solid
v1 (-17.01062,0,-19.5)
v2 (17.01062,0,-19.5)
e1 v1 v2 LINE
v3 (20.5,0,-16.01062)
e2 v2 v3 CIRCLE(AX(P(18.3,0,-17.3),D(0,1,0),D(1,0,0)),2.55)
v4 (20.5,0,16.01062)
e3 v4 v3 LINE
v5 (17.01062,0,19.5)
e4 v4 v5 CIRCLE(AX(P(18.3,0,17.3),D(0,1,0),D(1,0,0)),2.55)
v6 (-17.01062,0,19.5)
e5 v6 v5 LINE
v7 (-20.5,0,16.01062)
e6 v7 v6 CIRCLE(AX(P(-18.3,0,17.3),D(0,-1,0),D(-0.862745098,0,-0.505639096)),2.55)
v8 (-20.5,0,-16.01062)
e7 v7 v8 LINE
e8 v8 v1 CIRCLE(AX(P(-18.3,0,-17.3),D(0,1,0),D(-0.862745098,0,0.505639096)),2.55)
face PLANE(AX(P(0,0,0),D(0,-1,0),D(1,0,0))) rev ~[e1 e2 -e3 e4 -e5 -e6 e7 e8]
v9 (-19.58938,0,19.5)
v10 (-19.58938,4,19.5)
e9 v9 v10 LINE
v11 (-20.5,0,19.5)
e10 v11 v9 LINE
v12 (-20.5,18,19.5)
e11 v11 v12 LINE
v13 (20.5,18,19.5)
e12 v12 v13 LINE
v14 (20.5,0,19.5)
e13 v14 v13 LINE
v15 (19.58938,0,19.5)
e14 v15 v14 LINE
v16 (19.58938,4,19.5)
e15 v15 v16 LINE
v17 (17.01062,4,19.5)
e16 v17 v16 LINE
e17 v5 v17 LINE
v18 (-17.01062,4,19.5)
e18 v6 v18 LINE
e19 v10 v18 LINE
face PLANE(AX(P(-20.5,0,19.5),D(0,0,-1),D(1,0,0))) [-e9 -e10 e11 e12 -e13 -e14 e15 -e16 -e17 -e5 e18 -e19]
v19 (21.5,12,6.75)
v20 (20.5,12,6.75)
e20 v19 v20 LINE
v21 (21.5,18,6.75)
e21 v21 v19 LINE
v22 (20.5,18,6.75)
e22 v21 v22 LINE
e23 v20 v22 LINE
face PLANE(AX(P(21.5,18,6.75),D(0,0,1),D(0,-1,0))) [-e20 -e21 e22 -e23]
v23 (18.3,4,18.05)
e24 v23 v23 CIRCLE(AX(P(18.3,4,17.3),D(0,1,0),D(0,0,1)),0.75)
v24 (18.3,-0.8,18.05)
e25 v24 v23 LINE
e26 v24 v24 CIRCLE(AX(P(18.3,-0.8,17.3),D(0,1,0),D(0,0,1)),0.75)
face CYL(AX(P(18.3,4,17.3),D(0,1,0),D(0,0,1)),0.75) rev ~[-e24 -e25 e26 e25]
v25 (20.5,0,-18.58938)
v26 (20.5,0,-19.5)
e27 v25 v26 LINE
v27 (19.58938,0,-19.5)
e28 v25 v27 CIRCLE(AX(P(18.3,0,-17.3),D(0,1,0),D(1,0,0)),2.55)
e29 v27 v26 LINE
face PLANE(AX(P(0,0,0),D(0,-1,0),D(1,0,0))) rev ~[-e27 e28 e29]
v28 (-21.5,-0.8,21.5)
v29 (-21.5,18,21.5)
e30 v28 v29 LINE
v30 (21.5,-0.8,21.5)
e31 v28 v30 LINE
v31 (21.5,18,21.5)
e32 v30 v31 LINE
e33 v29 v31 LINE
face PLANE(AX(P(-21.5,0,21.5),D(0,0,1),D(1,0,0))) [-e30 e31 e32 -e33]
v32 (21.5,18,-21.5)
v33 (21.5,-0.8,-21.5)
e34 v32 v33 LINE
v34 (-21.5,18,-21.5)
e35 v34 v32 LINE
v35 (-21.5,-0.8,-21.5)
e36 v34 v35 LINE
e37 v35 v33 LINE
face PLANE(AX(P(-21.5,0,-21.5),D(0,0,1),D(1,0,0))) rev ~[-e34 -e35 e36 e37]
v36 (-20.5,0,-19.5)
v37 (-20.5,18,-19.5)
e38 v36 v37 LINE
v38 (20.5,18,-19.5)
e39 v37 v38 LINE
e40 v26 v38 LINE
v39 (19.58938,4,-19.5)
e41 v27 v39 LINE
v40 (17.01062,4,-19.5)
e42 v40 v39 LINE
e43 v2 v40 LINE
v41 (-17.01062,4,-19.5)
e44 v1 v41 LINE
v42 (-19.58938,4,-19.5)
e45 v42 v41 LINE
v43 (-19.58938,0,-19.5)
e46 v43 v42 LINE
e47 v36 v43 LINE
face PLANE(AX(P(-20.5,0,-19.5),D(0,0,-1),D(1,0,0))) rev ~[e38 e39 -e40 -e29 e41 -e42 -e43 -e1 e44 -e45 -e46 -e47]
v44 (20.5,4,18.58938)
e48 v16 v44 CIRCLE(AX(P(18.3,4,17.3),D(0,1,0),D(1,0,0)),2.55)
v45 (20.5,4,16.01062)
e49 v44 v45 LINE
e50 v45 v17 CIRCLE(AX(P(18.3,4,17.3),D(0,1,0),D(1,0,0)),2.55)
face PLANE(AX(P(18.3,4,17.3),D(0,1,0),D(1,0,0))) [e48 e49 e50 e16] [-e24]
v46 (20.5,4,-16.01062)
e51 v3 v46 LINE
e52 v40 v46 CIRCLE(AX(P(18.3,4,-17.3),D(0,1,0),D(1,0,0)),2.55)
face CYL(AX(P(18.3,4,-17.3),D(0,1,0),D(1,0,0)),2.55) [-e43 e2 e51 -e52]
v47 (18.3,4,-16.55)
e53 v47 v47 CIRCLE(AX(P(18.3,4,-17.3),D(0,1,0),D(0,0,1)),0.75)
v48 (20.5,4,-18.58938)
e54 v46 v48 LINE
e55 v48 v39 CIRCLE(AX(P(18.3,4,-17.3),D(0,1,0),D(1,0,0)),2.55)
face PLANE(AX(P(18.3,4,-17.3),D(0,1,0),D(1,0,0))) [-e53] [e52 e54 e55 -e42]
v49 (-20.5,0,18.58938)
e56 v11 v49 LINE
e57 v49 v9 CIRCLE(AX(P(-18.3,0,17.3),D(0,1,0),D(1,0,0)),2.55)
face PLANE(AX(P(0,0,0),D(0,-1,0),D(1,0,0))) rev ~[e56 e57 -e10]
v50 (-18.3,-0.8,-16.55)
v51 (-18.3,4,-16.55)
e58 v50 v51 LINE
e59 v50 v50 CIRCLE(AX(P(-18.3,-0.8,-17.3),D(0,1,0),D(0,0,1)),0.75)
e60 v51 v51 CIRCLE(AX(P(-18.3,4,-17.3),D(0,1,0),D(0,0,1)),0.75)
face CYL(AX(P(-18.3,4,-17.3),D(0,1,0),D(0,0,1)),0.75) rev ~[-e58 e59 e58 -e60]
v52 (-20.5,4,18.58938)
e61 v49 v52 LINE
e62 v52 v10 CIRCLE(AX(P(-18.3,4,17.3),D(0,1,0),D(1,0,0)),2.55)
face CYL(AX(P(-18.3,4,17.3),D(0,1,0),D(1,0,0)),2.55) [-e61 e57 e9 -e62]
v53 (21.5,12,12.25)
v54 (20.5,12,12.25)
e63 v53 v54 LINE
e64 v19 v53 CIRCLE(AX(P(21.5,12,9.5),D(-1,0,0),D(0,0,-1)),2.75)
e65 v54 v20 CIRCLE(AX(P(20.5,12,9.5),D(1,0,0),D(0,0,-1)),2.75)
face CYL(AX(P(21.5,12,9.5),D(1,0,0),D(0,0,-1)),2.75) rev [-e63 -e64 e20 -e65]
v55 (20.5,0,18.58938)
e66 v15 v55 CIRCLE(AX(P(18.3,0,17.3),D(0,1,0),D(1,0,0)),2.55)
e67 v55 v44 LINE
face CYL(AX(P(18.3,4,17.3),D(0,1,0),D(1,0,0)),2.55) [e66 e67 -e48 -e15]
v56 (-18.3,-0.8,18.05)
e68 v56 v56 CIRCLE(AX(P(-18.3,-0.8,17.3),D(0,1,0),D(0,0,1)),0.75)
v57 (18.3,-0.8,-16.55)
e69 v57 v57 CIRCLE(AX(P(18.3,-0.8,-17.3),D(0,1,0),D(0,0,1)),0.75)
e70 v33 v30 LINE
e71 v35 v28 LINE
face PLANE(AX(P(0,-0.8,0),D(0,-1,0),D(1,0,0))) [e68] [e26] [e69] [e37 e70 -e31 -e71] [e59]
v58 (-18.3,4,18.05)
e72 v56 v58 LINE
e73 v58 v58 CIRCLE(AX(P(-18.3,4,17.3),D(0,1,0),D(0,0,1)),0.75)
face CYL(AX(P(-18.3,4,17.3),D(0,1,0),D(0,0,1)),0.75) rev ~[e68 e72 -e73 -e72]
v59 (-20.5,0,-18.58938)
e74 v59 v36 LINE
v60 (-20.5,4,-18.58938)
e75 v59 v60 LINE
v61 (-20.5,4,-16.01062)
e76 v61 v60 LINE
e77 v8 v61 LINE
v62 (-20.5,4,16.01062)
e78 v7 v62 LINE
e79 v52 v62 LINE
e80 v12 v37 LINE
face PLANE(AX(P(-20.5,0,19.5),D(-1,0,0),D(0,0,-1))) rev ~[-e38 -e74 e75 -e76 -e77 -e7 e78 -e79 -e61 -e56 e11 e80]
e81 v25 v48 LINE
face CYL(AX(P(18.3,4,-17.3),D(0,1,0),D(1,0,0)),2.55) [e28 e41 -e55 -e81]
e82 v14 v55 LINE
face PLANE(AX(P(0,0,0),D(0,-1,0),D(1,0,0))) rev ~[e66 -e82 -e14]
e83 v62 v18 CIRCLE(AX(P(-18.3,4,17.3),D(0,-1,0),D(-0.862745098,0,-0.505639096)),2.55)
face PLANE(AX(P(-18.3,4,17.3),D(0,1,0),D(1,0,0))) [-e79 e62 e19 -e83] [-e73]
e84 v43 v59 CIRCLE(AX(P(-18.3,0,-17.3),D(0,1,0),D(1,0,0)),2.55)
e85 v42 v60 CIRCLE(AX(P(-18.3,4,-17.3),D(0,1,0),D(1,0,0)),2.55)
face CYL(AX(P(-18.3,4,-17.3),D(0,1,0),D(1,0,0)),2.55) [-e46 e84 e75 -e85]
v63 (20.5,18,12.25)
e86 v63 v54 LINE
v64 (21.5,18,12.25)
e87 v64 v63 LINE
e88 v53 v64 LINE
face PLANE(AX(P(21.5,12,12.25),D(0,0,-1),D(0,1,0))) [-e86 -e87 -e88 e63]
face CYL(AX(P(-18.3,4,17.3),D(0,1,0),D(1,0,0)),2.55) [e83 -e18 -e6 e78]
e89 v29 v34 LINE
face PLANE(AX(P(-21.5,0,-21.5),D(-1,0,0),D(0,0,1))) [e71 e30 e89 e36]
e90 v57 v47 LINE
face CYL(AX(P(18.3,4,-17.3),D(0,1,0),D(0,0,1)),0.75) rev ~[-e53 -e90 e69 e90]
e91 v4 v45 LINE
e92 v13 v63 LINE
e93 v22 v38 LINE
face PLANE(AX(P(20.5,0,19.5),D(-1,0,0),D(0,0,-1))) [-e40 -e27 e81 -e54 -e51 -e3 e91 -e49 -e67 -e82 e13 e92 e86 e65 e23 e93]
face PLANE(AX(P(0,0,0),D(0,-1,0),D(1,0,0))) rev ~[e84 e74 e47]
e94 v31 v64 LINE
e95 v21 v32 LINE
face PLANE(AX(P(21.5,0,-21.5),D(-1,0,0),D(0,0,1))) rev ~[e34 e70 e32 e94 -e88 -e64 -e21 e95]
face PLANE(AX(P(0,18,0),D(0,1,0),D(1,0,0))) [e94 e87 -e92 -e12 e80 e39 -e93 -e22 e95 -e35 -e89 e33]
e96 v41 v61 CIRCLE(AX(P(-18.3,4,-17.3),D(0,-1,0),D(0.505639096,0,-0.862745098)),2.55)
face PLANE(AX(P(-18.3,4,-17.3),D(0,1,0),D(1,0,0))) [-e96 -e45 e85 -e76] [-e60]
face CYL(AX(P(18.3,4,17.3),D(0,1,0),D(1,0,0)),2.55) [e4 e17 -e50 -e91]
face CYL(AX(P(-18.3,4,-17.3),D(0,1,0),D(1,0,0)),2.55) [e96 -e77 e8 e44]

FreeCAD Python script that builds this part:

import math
import FreeCAD as App
import Part
import Sketcher
Q = App.Units.Quantity

doc = App.newDocument("Part")
params = doc.addObject("Spreadsheet::Sheet", "Params")
for row, (alias, value) in enumerate([
    ("sketch1_width", "43 mm"),
    ("sketch1_width2", "41 mm"),
    ("sketch1_height", "39 mm"),
    ("pad1_length", "18 mm"),
    ("sketch2_width", "43 mm"),
    ("pad2_length", "0.8 mm"),
    ("sketch3_diameter", "1.5 mm"),
    ("pocket1_length", "10.8 mm"),
    ("sketch4_diameter", "5.1 mm"),
    ("sketch4_diameter2", "1.5 mm"),
    ("pad3_length", "4 mm"),
    ("sketch5_width", "6 mm"),
    ("sketch5_radius", "2.75 mm"),
    ("pocket2_length", "4 mm"),
], start=1):
    params.set(f"A{row}", alias)
    params.set(f"B{row}", "=" + value)
    params.setAlias(f"B{row}", alias)

body = doc.addObject("PartDesign::Body", "Body")

# Sketch on XZ plane
sketch1 = doc.addObject("Sketcher::SketchObject", "Sketch")
body.addObject(sketch1)
sketch1.AttachmentSupport = (doc.XZ_Plane, [""])
sketch1.MapMode = "FlatFace"
sketch1.addGeometry([
    Part.LineSegment(App.Vector(-22, -22, 0), App.Vector(-22, 22, 0)),  # 0
    Part.LineSegment(App.Vector(-22, 22, 0), App.Vector(22, 22, 0)),  # 1
    Part.LineSegment(App.Vector(22, 22, 0), App.Vector(22, -22, 0)),  # 2
    Part.LineSegment(App.Vector(22, -22, 0), App.Vector(-22, -22, 0)),  # 3
    Part.LineSegment(App.Vector(20, 20, 0), App.Vector(-20, 20, 0)),  # 4
    Part.LineSegment(App.Vector(-20, 20, 0), App.Vector(-20, -20, 0)),  # 5
    Part.LineSegment(App.Vector(-20, -20, 0), App.Vector(20, -20, 0)),  # 6
    Part.LineSegment(App.Vector(20, -20, 0), App.Vector(20, 20, 0)),  # 7
], False)
sketch1.addConstraint([
    Sketcher.Constraint("Coincident", 0, 2, 1, 1),
    Sketcher.Constraint("Coincident", 1, 2, 2, 1),
    Sketcher.Constraint("Coincident", 2, 2, 3, 1),
    Sketcher.Constraint("Coincident", 3, 2, 0, 1),
    Sketcher.Constraint("Coincident", 4, 2, 5, 1),
    Sketcher.Constraint("Coincident", 5, 2, 6, 1),
    Sketcher.Constraint("Coincident", 6, 2, 7, 1),
    Sketcher.Constraint("Coincident", 7, 2, 4, 1),
    Sketcher.Constraint("Vertical", 0),
    Sketcher.Constraint("Horizontal", 1),
    Sketcher.Constraint("Vertical", 2),
    Sketcher.Constraint("Horizontal", 3),
    Sketcher.Constraint("Horizontal", 4),
    Sketcher.Constraint("Vertical", 5),
    Sketcher.Constraint("Horizontal", 6),
    Sketcher.Constraint("Vertical", 7),
    Sketcher.Constraint("Symmetric", 0, 2, 2, 2, -1, 1),
    Sketcher.Constraint("Symmetric", 4, 2, 6, 2, -1, 1),
    Sketcher.Constraint("Equal", 3, 0),
    Sketcher.Constraint("DistanceX", 1, 1, 1, 2, Q("43 mm")),
    Sketcher.Constraint("DistanceX", 4, 2, 4, 1, Q("41 mm")),
    Sketcher.Constraint("DistanceY", 5, 2, 5, 1, Q("39 mm")),
])
sketch1.setExpression("Constraints[19]", "Params.sketch1_width")
sketch1.setExpression("Constraints[20]", "Params.sketch1_width2")
sketch1.setExpression("Constraints[21]", "Params.sketch1_height")
pad1 = doc.addObject("PartDesign::Pad", "Pad")
body.addObject(pad1)
pad1.Profile = sketch1
pad1.setExpression("Length", "Params.pad1_length")
pad1.Reversed = True

# Sketch on XZ plane
sketch2 = doc.addObject("Sketcher::SketchObject", "Sketch001")
body.addObject(sketch2)
sketch2.AttachmentSupport = (doc.XZ_Plane, [""])
sketch2.MapMode = "FlatFace"
sketch2.addGeometry([
    Part.LineSegment(App.Vector(-22, 22, 0), App.Vector(-22, -22, 0)),
    Part.LineSegment(App.Vector(-22, -22, 0), App.Vector(22, -22, 0)),
    Part.LineSegment(App.Vector(22, -22, 0), App.Vector(22, 22, 0)),
    Part.LineSegment(App.Vector(22, 22, 0), App.Vector(-22, 22, 0)),
], False)
sketch2.addConstraint([
    Sketcher.Constraint("Coincident", 0, 2, 1, 1),
    Sketcher.Constraint("Coincident", 1, 2, 2, 1),
    Sketcher.Constraint("Coincident", 2, 2, 3, 1),
    Sketcher.Constraint("Coincident", 3, 2, 0, 1),
    Sketcher.Constraint("Vertical", 0),
    Sketcher.Constraint("Horizontal", 1),
    Sketcher.Constraint("Vertical", 2),
    Sketcher.Constraint("Horizontal", 3),
    Sketcher.Constraint("Symmetric", 0, 2, 2, 2, -1, 1),
    Sketcher.Constraint("Equal", 3, 0),
    Sketcher.Constraint("DistanceX", 1, 1, 1, 2, Q("43 mm")),
])
sketch2.setExpression("Constraints[10]", "Params.sketch2_width")
pad2 = doc.addObject("PartDesign::Pad", "Pad001")
body.addObject(pad2)
pad2.Profile = sketch2
pad2.setExpression("Length", "Params.pad2_length")

# Sketch on XZ plane
sketch3 = doc.addObject("Sketcher::SketchObject", "Sketch002")
body.addObject(sketch3)
sketch3.AttachmentSupport = (doc.XZ_Plane, [""])
sketch3.MapMode = "FlatFace"
sketch3.addGeometry([
    Part.Circle(App.Vector(18.3, -17.3, 0), App.Vector(0, 0, 1), 0.8),
    Part.Circle(App.Vector(-18.3, -17.3, 0), App.Vector(0, 0, 1), 0.8),
    Part.Circle(App.Vector(-18.3, 17.3, 0), App.Vector(0, 0, 1), 0.8),
    Part.Circle(App.Vector(18.3, 17.3, 0), App.Vector(0, 0, 1), 0.8),
], False)
sketch3.addConstraint([
    Sketcher.Constraint("Equal", 0, 1),
    Sketcher.Constraint("Equal", 1, 2),
    Sketcher.Constraint("Equal", 2, 3),
    Sketcher.Constraint("Symmetric", 0, 3, 2, 3, -1, 1),
    Sketcher.Constraint("Symmetric", 1, 3, 3, 3, -1, 1),
    Sketcher.Constraint("Symmetric", 0, 3, 1, 3, -2),
    Sketcher.Constraint("Diameter", 0, Q("1.5 mm")),
    Sketcher.Constraint("DistanceX", -1, 1, 0, 3, Q("18.3 mm")),
    Sketcher.Constraint("DistanceY", 0, 3, -1, 1, Q("17.3 mm")),
])
sketch3.setExpression("Constraints[6]", "Params.sketch3_diameter")
pocket1 = doc.addObject("PartDesign::Pocket", "Pocket")
body.addObject(pocket1)
pocket1.Profile = sketch3
pocket1.setExpression("Length", "Params.pocket1_length")
pocket1.Reversed = True

# Sketch on XZ plane
sketch4 = doc.addObject("Sketcher::SketchObject", "Sketch003")
body.addObject(sketch4)
sketch4.AttachmentSupport = (doc.XZ_Plane, [""])
sketch4.MapMode = "FlatFace"
sketch4.AttachmentOffset = App.Placement(App.Vector(0, 0, -4), App.Rotation())
sketch4.addGeometry([
    Part.Circle(App.Vector(-18.3, -17.3, 0), App.Vector(0, 0, 1), 2.5),  # 0
    Part.Circle(App.Vector(-18.3, -17.3, 0), App.Vector(0, 0, 1), 0.8),  # 1
    Part.Circle(App.Vector(18.3, -17.3, 0), App.Vector(0, 0, 1), 2.5),  # 2
    Part.Circle(App.Vector(18.3, -17.3, 0), App.Vector(0, 0, 1), 0.8),  # 3
    Part.Circle(App.Vector(18.3, 17.3, 0), App.Vector(0, 0, 1), 2.5),  # 4
    Part.Circle(App.Vector(18.3, 17.3, 0), App.Vector(0, 0, 1), 0.8),  # 5
    Part.Circle(App.Vector(-18.3, 17.3, 0), App.Vector(0, 0, 1), 2.5),  # 6
    Part.Circle(App.Vector(-18.3, 17.3, 0), App.Vector(0, 0, 1), 0.8),  # 7
], False)
sketch4.addConstraint([
    Sketcher.Constraint("Coincident", 1, 3, 0, 3),
    Sketcher.Constraint("Coincident", 3, 3, 2, 3),
    Sketcher.Constraint("Coincident", 5, 3, 4, 3),
    Sketcher.Constraint("Coincident", 7, 3, 6, 3),
    Sketcher.Constraint("Equal", 0, 2),
    Sketcher.Constraint("Equal", 1, 3),
    Sketcher.Constraint("Equal", 2, 4),
    Sketcher.Constraint("Equal", 3, 5),
    Sketcher.Constraint("Equal", 4, 6),
    Sketcher.Constraint("Equal", 5, 7),
    Sketcher.Constraint("Symmetric", 0, 3, 4, 3, -1, 1),
    Sketcher.Constraint("Symmetric", 2, 3, 6, 3, -1, 1),
    Sketcher.Constraint("Symmetric", 0, 3, 2, 3, -2),
    Sketcher.Constraint("Diameter", 0, Q("5.1 mm")),
    Sketcher.Constraint("Diameter", 1, Q("1.5 mm")),
    Sketcher.Constraint("DistanceX", 0, 3, -1, 1, Q("18.3 mm")),
    Sketcher.Constraint("DistanceY", 0, 3, -1, 1, Q("17.3 mm")),
])
sketch4.setExpression("Constraints[13]", "Params.sketch4_diameter")
sketch4.setExpression("Constraints[14]", "Params.sketch4_diameter2")
pad3 = doc.addObject("PartDesign::Pad", "Pad002")
body.addObject(pad3)
pad3.Profile = sketch4
pad3.setExpression("Length", "Params.pad3_length")

# Sketch on YZ plane
sketch5 = doc.addObject("Sketcher::SketchObject", "Sketch004")
body.addObject(sketch5)
sketch5.AttachmentSupport = (doc.YZ_Plane, [""])
sketch5.MapMode = "FlatFace"
sketch5.AttachmentOffset = App.Placement(App.Vector(0, 0, 21.5), App.Rotation())
sketch5.addGeometry([
    Part.LineSegment(App.Vector(18, 12.2, 0), App.Vector(12, 12.2, 0)),
    Part.ArcOfCircle(Part.Circle(App.Vector(12, 9.5, 0), App.Vector(0, 0, 1), 2.8), math.radians(90), math.radians(270)),
    Part.LineSegment(App.Vector(12, 6.8, 0), App.Vector(18, 6.8, 0)),
    Part.LineSegment(App.Vector(18, 6.8, 0), App.Vector(18, 12.2, 0)),
], False)
sketch5.addConstraint([
    Sketcher.Constraint("Tangent", 0, 2, 1, 1),
    Sketcher.Constraint("Tangent", 1, 2, 2, 1),
    Sketcher.Constraint("Coincident", 2, 2, 3, 1),
    Sketcher.Constraint("Coincident", 3, 2, 0, 1),
    Sketcher.Constraint("Horizontal", 0),
    Sketcher.Constraint("Horizontal", 2),
    Sketcher.Constraint("Vertical", 3),
    Sketcher.Constraint("DistanceX", 0, 2, 0, 1, Q("6 mm")),
    Sketcher.Constraint("Radius", 1, Q("2.75 mm")),
    Sketcher.Constraint("DistanceX", -1, 1, 1, 3, Q("12 mm")),
    Sketcher.Constraint("DistanceY", -1, 1, 1, 3, Q("9.5 mm")),
])
sketch5.setExpression("Constraints[7]", "Params.sketch5_width")
sketch5.setExpression("Constraints[8]", "Params.sketch5_radius")
pocket2 = doc.addObject("PartDesign::Pocket", "Pocket001")
body.addObject(pocket2)
pocket2.Profile = sketch5
pocket2.setExpression("Length", "Params.pocket2_length")

doc.recompute()
